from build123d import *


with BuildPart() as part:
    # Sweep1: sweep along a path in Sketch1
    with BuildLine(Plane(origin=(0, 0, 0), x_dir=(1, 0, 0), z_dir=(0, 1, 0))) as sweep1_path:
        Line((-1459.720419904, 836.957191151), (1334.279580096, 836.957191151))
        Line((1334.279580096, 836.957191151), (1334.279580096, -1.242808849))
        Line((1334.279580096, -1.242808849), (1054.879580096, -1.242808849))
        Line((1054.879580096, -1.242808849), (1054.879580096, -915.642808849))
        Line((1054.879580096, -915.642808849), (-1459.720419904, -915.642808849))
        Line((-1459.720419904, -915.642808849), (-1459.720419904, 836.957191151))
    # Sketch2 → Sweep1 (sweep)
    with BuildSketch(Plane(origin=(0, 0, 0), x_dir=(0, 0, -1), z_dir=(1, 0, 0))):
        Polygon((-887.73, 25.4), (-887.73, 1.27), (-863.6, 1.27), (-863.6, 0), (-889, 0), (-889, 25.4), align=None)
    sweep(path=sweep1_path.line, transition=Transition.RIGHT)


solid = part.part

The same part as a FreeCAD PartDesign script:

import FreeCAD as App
import Part
import Sketcher
Q = App.Units.Quantity


def add_polygon(sketch, points):
    """Adds a closed chain of lines whose ends are joined by coincident constraints."""
    first, n = sketch.GeometryCount, len(points)
    for a, b in zip(points, points[1:] + points[:1]):
        sketch.addGeometry(Part.LineSegment(App.Vector(*a, 0), App.Vector(*b, 0)), False)
    for i in range(n):
        sketch.addConstraint(Sketcher.Constraint("Coincident", first + i, 2, first + (i + 1) % n, 1))

doc = App.newDocument("Part")
body = doc.addObject("PartDesign::Body", "Body")

# Sketch on YZ plane
sketch1 = body.newObject("Sketcher::SketchObject", "Sketch")
sketch1.AttachmentSupport = (doc.getObject("YZ_Plane"), [""])
sketch1.MapMode = "FlatFace"
add_polygon(sketch1, [(1.3, 887.7), (25.4, 887.7), (25.4, 889), (0, 889), (0, 863.6), (1.3, 863.6)])  # lines 0-5
sketch1.addConstraint([
    Sketcher.Constraint("Horizontal", 0),
    Sketcher.Constraint("Vertical", 1),
    Sketcher.Constraint("Horizontal", 2),
    Sketcher.Constraint("Vertical", 3),
    Sketcher.Constraint("Horizontal", 4),
    Sketcher.Constraint("Vertical", 5),
    Sketcher.Constraint("PointOnObject", 2, 2, -2),
    Sketcher.Constraint("Equal", 4, 1),
    Sketcher.Constraint("Equal", 2, 3),
    Sketcher.Constraint("DistanceX", 2, 2, 2, 1, Q("1 in")),
    Sketcher.Constraint("DistanceY", -1, 1, 1, 2, Q("35 in")),
    Sketcher.Constraint("DistanceX", 0, 1, 0, 2, Q("0.95 in")),
])

# Sketch on XZ plane
sketch2 = body.newObject("Sketcher::SketchObject", "Sketch001")
sketch2.AttachmentSupport = (doc.getObject("XZ_Plane"), [""])
sketch2.MapMode = "FlatFace"
add_polygon(sketch2, [(-1460, -837), (1334, -837), (1334, 1), (1055, 1), (1055, 916), (-1460, 916)])  # lines 0-5
sketch2.addConstraint([
    Sketcher.Constraint("Horizontal", 0),
    Sketcher.Constraint("Vertical", 1),
    Sketcher.Constraint("Horizontal", 2),
    Sketcher.Constraint("Vertical", 3),
    Sketcher.Constraint("Horizontal", 4),
    Sketcher.Constraint("Vertical", 5),
    Sketcher.Constraint("DistanceX", 0, 1, 0, 2, Q("110 in")),
    Sketcher.Constraint("DistanceX", 2, 2, 2, 1, Q("11 in")),
    Sketcher.Constraint("DistanceY", 1, 1, 1, 2, Q("33 in")),
    Sketcher.Constraint("DistanceY", 3, 1, 3, 2, Q("36 in")),
    Sketcher.Constraint("DistanceX", -1, 1, 0, 2, 1334.27958),
    Sketcher.Constraint("DistanceY", 0, 2, -1, 1, 836.957191),
])
doc.recompute()

additivepipe = body.newObject("PartDesign::AdditivePipe", "AdditivePipe")
additivepipe.Profile = sketch1
additivepipe.Spine = (sketch2, ["Edge1", "Edge2", "Edge3", "Edge4", "Edge5", "Edge6"])
additivepipe.Transition = "Right corner"

doc.recompute()
